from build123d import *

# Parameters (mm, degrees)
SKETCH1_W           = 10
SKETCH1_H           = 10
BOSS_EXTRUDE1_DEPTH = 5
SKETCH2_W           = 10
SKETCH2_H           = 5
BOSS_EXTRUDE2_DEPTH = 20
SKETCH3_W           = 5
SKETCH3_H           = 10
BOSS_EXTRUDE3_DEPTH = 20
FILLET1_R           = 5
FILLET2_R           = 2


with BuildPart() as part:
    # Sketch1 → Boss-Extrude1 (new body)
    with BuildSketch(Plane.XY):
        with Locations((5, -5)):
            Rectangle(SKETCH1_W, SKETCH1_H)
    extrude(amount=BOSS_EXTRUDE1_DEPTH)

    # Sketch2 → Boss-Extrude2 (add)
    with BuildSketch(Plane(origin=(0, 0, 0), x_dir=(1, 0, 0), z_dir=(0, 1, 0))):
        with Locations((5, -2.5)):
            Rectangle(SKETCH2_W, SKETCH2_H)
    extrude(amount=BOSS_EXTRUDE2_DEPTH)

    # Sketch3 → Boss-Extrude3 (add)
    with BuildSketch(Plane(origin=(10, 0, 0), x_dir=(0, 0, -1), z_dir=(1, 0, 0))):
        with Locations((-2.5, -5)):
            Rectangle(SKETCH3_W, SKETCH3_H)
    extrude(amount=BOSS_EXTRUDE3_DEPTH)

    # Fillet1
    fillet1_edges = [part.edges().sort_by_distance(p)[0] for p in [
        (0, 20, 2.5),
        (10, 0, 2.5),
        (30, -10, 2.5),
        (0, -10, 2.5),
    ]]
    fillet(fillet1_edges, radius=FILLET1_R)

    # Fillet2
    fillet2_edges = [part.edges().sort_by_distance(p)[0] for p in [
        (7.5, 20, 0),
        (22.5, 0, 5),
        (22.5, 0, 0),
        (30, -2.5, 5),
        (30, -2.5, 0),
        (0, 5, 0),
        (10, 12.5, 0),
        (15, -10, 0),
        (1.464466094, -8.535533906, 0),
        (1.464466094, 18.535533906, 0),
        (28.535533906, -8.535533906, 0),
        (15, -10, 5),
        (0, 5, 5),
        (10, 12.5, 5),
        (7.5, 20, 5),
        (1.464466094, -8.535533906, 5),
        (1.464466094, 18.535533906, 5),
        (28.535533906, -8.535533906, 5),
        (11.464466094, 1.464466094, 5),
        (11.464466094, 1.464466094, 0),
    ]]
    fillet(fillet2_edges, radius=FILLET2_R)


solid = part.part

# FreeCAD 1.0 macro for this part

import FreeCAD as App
import Part
import Sketcher
Q = App.Units.Quantity


def edges_at(feature, points):
    """Names of the edges that pass closest to the given points."""
    edges = feature.Shape.Edges
    near = lambda p: min(range(len(edges)), key=lambda i: edges[i].distToShape(Part.Vertex(*p))[0])
    return sorted({f"Edge{near(p) + 1}" for p in points})


def add_polygon(sketch, points):
    """Adds a closed chain of lines whose ends are joined by coincident constraints."""
    first, n = sketch.GeometryCount, len(points)
    for a, b in zip(points, points[1:] + points[:1]):
        sketch.addGeometry(Part.LineSegment(App.Vector(*a, 0), App.Vector(*b, 0)), False)
    for i in range(n):
        sketch.addConstraint(Sketcher.Constraint("Coincident", first + i, 2, first + (i + 1) % n, 1))

doc = App.newDocument("Part")
params = doc.addObject("Spreadsheet::Sheet", "Params")
for row, (alias, value) in enumerate([
    ("sketch1_width", "10 mm"),
    ("pad1_length", "5 mm"),
    ("sketch2_width", "10 mm"),
    ("sketch2_height", "5 mm"),
    ("pad2_length", "20 mm"),
    ("sketch3_width", "10 mm"),
    ("sketch3_height", "5 mm"),
    ("pad3_length", "20 mm"),
    ("fillet_radius", "5 mm"),
    ("fillet2_radius", "2 mm"),
], start=1):
    params.set(f"A{row}", alias)
    params.set(f"B{row}", "=" + value)
    params.setAlias(f"B{row}", alias)

body = doc.addObject("PartDesign::Body", "Body")

# Sketch on XY plane
sketch1 = body.newObject("Sketcher::SketchObject", "Sketch")
sketch1.AttachmentSupport = (doc.getObject("XY_Plane"), [""])
sketch1.MapMode = "FlatFace"
add_polygon(sketch1, [(0, 0), (0, -10), (10, -10), (10, 0)])  # lines 0-3
sketch1.addConstraint(Sketcher.Constraint("Vertical", 0))
sketch1.addConstraint(Sketcher.Constraint("Horizontal", 1))
sketch1.addConstraint(Sketcher.Constraint("Vertical", 2))
sketch1.addConstraint(Sketcher.Constraint("Horizontal", 3))
sketch1.addConstraint(Sketcher.Constraint("Coincident", 3, 2, -1, 1))
sketch1.addConstraint(Sketcher.Constraint("Equal", 3, 0))
sketch1.addConstraint(Sketcher.Constraint("DistanceX", 1, 1, 1, 2, Q("10 mm")))
sketch1.setExpression("Constraints[10]", "Params.sketch1_width")
pad1 = body.newObject("PartDesign::Pad", "Pad")
pad1.Profile = sketch1
pad1.setExpression("Length", "Params.pad1_length")

# Sketch on XZ plane
sketch2 = body.newObject("Sketcher::SketchObject", "Sketch001")
sketch2.AttachmentSupport = (doc.getObject("XZ_Plane"), [""])
sketch2.MapMode = "FlatFace"
add_polygon(sketch2, [(0, 0), (0, 5), (10, 5), (10, 0)])  # lines 0-3
sketch2.addConstraint(Sketcher.Constraint("Vertical", 0))
sketch2.addConstraint(Sketcher.Constraint("Horizontal", 1))
sketch2.addConstraint(Sketcher.Constraint("Vertical", 2))
sketch2.addConstraint(Sketcher.Constraint("Horizontal", 3))
sketch2.addConstraint(Sketcher.Constraint("Coincident", 3, 2, -1, 1))
sketch2.addConstraint(Sketcher.Constraint("DistanceX", 1, 1, 1, 2, Q("10 mm")))
sketch2.addConstraint(Sketcher.Constraint("DistanceY", 0, 1, 0, 2, Q("5 mm")))
sketch2.setExpression("Constraints[9]", "Params.sketch2_width")
sketch2.setExpression("Constraints[10]", "Params.sketch2_height")
pad2 = body.newObject("PartDesign::Pad", "Pad001")
pad2.Profile = sketch2
pad2.setExpression("Length", "Params.pad2_length")
pad2.Reversed = True

# Sketch on YZ plane
sketch3 = body.newObject("Sketcher::SketchObject", "Sketch002")
sketch3.AttachmentSupport = (doc.getObject("YZ_Plane"), [""])
sketch3.MapMode = "FlatFace"
sketch3.AttachmentOffset = App.Placement(App.Vector(0, 0, 10), App.Rotation())
add_polygon(sketch3, [(0, 5), (-10, 5), (-10, 0), (0, 0)])  # lines 0-3
sketch3.addConstraint(Sketcher.Constraint("Horizontal", 0))
sketch3.addConstraint(Sketcher.Constraint("Vertical", 1))
sketch3.addConstraint(Sketcher.Constraint("Horizontal", 2))
sketch3.addConstraint(Sketcher.Constraint("Vertical", 3))
sketch3.addConstraint(Sketcher.Constraint("Coincident", 2, 2, -1, 1))
sketch3.addConstraint(Sketcher.Constraint("DistanceX", 0, 2, 0, 1, Q("10 mm")))
sketch3.addConstraint(Sketcher.Constraint("DistanceY", 1, 2, 1, 1, Q("5 mm")))
sketch3.setExpression("Constraints[9]", "Params.sketch3_width")
sketch3.setExpression("Constraints[10]", "Params.sketch3_height")
pad3 = body.newObject("PartDesign::Pad", "Pad002")
pad3.Profile = sketch3
pad3.setExpression("Length", "Params.pad3_length")
doc.recompute()

fillet = body.newObject("PartDesign::Fillet", "Fillet")
fillet.Base = (pad3, edges_at(pad3, [
    (0, 20, 2.5),
    (10, 0, 2.5),
    (30, -10, 2.5),
    (0, -10, 2.5),
]))
fillet.setExpression("Radius", "Params.fillet_radius")
doc.recompute()

fillet2 = body.newObject("PartDesign::Fillet", "Fillet001")
fillet2.Base = (fillet, edges_at(fillet, [
    (7.5, 20, 0),
    (22.5, 0, 5),
    (22.5, 0, 0),
    (30, -2.5, 5),
    (30, -2.5, 0),
    (0, 5, 0),
    (10, 12.5, 0),
    (15, -10, 0),
    (1.464, -8.536, 0),
    (1.464, 18.536, 0),
    (28.536, -8.536, 0),
    (15, -10, 5),
    (0, 5, 5),
    (10, 12.5, 5),
    (7.5, 20, 5),
    (1.464, -8.536, 5),
    (1.464, 18.536, 5),
    (28.536, -8.536, 5),
    (11.464, 1.464, 5),
    (11.464, 1.464, 0),
]))
fillet2.setExpression("Radius", "Params.fillet2_radius")

doc.recompute()
